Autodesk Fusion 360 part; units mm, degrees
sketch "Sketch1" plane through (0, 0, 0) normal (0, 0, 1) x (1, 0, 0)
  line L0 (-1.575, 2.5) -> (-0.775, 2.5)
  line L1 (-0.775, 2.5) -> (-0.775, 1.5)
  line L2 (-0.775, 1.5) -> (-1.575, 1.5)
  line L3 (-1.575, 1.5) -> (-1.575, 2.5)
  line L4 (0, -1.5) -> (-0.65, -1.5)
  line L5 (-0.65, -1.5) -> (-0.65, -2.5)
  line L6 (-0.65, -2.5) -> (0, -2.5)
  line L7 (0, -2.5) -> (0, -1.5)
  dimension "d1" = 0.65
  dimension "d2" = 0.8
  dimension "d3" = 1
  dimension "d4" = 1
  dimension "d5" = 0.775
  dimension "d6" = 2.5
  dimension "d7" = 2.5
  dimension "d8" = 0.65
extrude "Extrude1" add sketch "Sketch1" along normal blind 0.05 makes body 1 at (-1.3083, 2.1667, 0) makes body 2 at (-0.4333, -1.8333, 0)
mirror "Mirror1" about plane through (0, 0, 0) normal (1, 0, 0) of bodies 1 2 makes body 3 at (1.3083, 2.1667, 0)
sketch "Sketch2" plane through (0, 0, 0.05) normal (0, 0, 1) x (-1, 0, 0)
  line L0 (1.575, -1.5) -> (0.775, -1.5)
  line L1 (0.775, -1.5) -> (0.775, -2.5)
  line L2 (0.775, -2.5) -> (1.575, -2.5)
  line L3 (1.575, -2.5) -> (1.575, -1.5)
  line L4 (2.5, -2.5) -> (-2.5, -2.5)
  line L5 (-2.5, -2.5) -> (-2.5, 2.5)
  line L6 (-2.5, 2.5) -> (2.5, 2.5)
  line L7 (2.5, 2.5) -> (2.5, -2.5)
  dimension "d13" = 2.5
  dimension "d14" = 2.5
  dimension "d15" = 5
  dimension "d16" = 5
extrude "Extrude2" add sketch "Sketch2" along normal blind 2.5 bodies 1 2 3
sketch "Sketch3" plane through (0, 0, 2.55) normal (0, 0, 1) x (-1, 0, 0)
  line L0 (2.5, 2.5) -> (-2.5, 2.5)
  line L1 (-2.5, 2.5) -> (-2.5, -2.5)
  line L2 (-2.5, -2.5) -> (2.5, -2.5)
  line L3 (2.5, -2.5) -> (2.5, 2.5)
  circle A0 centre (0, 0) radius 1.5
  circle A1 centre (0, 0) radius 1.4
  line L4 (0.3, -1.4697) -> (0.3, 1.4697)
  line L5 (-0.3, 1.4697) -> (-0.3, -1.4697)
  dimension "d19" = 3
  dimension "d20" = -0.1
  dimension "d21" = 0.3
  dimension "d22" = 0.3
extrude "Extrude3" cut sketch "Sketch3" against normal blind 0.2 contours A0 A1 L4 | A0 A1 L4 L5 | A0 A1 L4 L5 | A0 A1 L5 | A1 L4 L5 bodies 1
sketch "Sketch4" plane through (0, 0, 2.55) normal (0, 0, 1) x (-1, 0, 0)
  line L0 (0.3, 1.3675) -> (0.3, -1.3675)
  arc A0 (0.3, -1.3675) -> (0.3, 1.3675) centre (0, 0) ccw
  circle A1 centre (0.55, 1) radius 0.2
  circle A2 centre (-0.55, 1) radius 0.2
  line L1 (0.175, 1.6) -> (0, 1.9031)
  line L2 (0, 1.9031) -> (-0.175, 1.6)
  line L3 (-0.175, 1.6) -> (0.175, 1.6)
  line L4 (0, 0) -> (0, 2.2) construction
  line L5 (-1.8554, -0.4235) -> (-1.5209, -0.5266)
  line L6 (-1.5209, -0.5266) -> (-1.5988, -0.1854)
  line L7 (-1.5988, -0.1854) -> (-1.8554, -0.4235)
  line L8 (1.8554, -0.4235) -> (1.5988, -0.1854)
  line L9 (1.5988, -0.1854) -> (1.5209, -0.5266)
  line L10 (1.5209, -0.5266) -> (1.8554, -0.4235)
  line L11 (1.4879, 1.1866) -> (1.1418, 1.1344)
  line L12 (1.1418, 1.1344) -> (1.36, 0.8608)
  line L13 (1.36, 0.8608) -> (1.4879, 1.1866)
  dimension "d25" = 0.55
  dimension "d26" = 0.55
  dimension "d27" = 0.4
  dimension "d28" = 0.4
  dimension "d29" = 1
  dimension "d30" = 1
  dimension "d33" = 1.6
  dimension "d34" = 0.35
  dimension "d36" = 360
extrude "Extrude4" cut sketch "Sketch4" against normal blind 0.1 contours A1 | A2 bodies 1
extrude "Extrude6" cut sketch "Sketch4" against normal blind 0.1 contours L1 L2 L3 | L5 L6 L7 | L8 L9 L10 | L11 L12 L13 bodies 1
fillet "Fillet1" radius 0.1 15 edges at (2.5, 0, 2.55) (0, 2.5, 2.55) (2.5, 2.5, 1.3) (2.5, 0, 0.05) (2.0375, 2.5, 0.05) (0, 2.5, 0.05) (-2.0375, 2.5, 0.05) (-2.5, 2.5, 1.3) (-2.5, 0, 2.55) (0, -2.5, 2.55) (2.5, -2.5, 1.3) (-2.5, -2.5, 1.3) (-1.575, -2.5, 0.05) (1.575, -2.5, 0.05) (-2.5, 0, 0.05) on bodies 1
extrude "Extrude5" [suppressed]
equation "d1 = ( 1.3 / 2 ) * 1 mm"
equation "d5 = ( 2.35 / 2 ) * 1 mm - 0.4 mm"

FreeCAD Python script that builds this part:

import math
import FreeCAD as App
import Part
import Sketcher
from FreeCAD import Vector
Q = App.Units.Quantity


def edges_at(feature, points):
    """Names of the edges that pass closest to the given points."""
    edges = feature.Shape.Edges
    near = lambda p: min(range(len(edges)), key=lambda i: edges[i].distToShape(Part.Vertex(*p))[0])
    return sorted({f"Edge{near(p) + 1}" for p in points})


def add_polygon(sketch, points):
    """Adds a closed chain of lines whose ends are joined by coincident constraints."""
    first, n = sketch.GeometryCount, len(points)
    for a, b in zip(points, points[1:] + points[:1]):
        sketch.addGeometry(Part.LineSegment(App.Vector(*a, 0), App.Vector(*b, 0)), False)
    for i in range(n):
        sketch.addConstraint(Sketcher.Constraint("Coincident", first + i, 2, first + (i + 1) % n, 1))

doc = App.newDocument("Part")
body = doc.addObject("PartDesign::Body", "Body")
body.AllowCompound = True

# Sketch on XY plane
sketch1 = body.newObject("Sketcher::SketchObject", "Sketch")
sketch1.AttachmentSupport = (doc.getObject("XY_Plane"), [""])
sketch1.MapMode = "FlatFace"
add_polygon(sketch1, [(-0.8, 2.5), (-1.6, 2.5), (-1.6, 1.5), (-0.8, 1.5)])  # lines 0-3
add_polygon(sketch1, [(0, -2.5), (0, -1.5), (-0.7, -1.5), (-0.7, -2.5)])  # lines 4-7
sketch1.addConstraint([
    Sketcher.Constraint("Horizontal", 0),
    Sketcher.Constraint("Vertical", 1),
    Sketcher.Constraint("Horizontal", 2),
    Sketcher.Constraint("Vertical", 3),
    Sketcher.Constraint("Vertical", 4),
    Sketcher.Constraint("Horizontal", 5),
    Sketcher.Constraint("Vertical", 6),
    Sketcher.Constraint("Horizontal", 7),
    Sketcher.Constraint("PointOnObject", 4, 2, -2),
    Sketcher.Constraint("Equal", 3, 4),
    Sketcher.Constraint("DistanceY", 1, 2, 1, 1, 1.0),
    Sketcher.Constraint("DistanceX", 0, 2, 0, 1, 0.8),
    Sketcher.Constraint("DistanceX", 5, 2, 5, 1, 0.65),
    Sketcher.Constraint("DistanceY", -1, 1, 0, 2, 2.5),
    Sketcher.Constraint("DistanceY", 6, 2, -1, 1, 2.5),
    Sketcher.Constraint("DistanceX", 2, 2, -1, 1, 0.775),
])
pad1 = body.newObject("PartDesign::Pad", "Pad")
pad1.Profile = sketch1
pad1.Length = 0.05
doc.recompute()

mirrored = body.newObject("PartDesign::Mirrored", "Mirrored")
mirrored.TransformMode = "Transform body"
mirrored.MirrorPlane = (doc.getObject("YZ_Plane"), [""])
body.Tip = mirrored

# Sketch on XY plane
sketch2 = body.newObject("Sketcher::SketchObject", "Sketch001")
sketch2.AttachmentSupport = (doc.getObject("XY_Plane"), [""])
sketch2.MapMode = "FlatFace"
sketch2.AttachmentOffset = App.Placement(Vector(0, 0, 0.05), App.Rotation())
add_polygon(sketch2, [(-2, 2), (-2, -2), (2, -2), (2, 2)])  # lines 0-3
sketch2.addConstraint([
    Sketcher.Constraint("Vertical", 0),
    Sketcher.Constraint("Horizontal", 1),
    Sketcher.Constraint("Vertical", 2),
    Sketcher.Constraint("Horizontal", 3),
    Sketcher.Constraint("Symmetric", 0, 2, 2, 2, -1, 1),
    Sketcher.Constraint("Equal", 3, 0),
    Sketcher.Constraint("DistanceX", 1, 1, 1, 2, 5.0),
])
pad2 = body.newObject("PartDesign::Pad", "Pad001")
pad2.Profile = sketch2
pad2.Length = 2.5

# Sketch on XY plane
sketch3 = body.newObject("Sketcher::SketchObject", "Sketch002")
sketch3.AttachmentSupport = (doc.getObject("XY_Plane"), [""])
sketch3.MapMode = "FlatFace"
sketch3.AttachmentOffset = App.Placement(Vector(0, 0, 2.55), App.Rotation())
sketch3.addGeometry([
    Part.Circle(Vector(0, 0, 0), Vector(0, 0, 1), 1.5),  # 0
    Part.LineSegment(Vector(-0.3, 1.4, 0), Vector(-0.3, -1.4, 0)),  # 1
    Part.ArcOfCircle(Part.Circle(Vector(0, 0, 0), Vector(0, 0, 1), 1.4), math.radians(102), math.radians(258)),  # 2
    Part.ArcOfCircle(Part.Circle(Vector(0, 0, 0), Vector(0, 0, 1), 1.4), math.radians(-78), math.radians(78)),  # 3
    Part.LineSegment(Vector(0.3, -1.4, 0), Vector(0.3, 1.4, 0)),  # 4
], False)
sketch3.addConstraint([
    Sketcher.Constraint("Coincident", 1, 1, 2, 1),
    Sketcher.Constraint("Coincident", 2, 2, 1, 2),
    Sketcher.Constraint("Coincident", 3, 1, 4, 1),
    Sketcher.Constraint("Coincident", 4, 2, 3, 2),
    Sketcher.Constraint("Vertical", 1),
    Sketcher.Constraint("Vertical", 4),
    Sketcher.Constraint("Coincident", 0, 3, -1, 1),
    Sketcher.Constraint("Coincident", 2, 3, -1, 1),
    Sketcher.Constraint("Coincident", 3, 3, -1, 1),
    Sketcher.Constraint("Equal", 2, 3),
    Sketcher.Constraint("Horizontal", 2, 2, 3, 1),
    Sketcher.Constraint("Diameter", 0, 3.0),
    Sketcher.Constraint("DistanceX", 1, 1, -1, 1, 0.3),
    Sketcher.Constraint("Radius", 2, 1.4),
])
pocket1 = body.newObject("PartDesign::Pocket", "Pocket")
pocket1.Profile = sketch3
pocket1.Length = 0.2

# Sketch on XY plane
sketch4 = body.newObject("Sketcher::SketchObject", "Sketch003")
sketch4.AttachmentSupport = (doc.getObject("XY_Plane"), [""])
sketch4.MapMode = "FlatFace"
sketch4.AttachmentOffset = App.Placement(Vector(0, 0, 2.55), App.Rotation())
sketch4.addGeometry([
    Part.Circle(Vector(-0.55, -1, 0), Vector(0, 0, 1), 0.2),
    Part.Circle(Vector(0.55, -1, 0), Vector(0, 0, 1), 0.2),
], False)
sketch4.addConstraint([
    Sketcher.Constraint("Equal", 0, 1),
    Sketcher.Constraint("Symmetric", 0, 3, 1, 3, -2),
    Sketcher.Constraint("Diameter", 0, 0.4),
    Sketcher.Constraint("DistanceY", 0, 3, -1, 1, 1.0),
    Sketcher.Constraint("DistanceX", 0, 3, -1, 1, 0.55),
])
pocket2 = body.newObject("PartDesign::Pocket", "Pocket001")
pocket2.Profile = sketch4
pocket2.Length = 0.1

# Sketch on XY plane
sketch5 = body.newObject("Sketcher::SketchObject", "Sketch004")
sketch5.AttachmentSupport = (doc.getObject("XY_Plane"), [""])
sketch5.MapMode = "FlatFace"
sketch5.AttachmentOffset = App.Placement(Vector(0, 0, 2.55), App.Rotation())
add_polygon(sketch5, [(0.17, -1.6), (-0.17, -1.6), (0, -1.9)])  # lines 0-2
add_polygon(sketch5, [(1.6, 0.19), (1.86, 0.42), (1.52, 0.53)])  # lines 3-5
add_polygon(sketch5, [(-1.52, 0.53), (-1.86, 0.42), (-1.6, 0.19)])  # lines 6-8
add_polygon(sketch5, [(-1.36, -0.86), (-1.49, -1.19), (-1.14, -1.13)])  # lines 9-11
sketch5.addConstraint([
    Sketcher.Constraint("Horizontal", 0),
    Sketcher.Constraint("Symmetric", 3, 2, 6, 2, -2),
    Sketcher.Constraint("Symmetric", 5, 2, 7, 2, -2),
    Sketcher.Constraint("Symmetric", 4, 2, 8, 2, -2),
    Sketcher.Constraint("PointOnObject", 1, 2, -2),
    Sketcher.Constraint("Equal", 1, 2),
    Sketcher.Constraint("Equal", 2, 3),
    Sketcher.Constraint("Equal", 3, 4),
    Sketcher.Constraint("Equal", 4, 5),
    Sketcher.Constraint("Equal", 8, 9),
    Sketcher.Constraint("Equal", 9, 10),
    Sketcher.Constraint("Equal", 10, 11),
    Sketcher.Constraint("DistanceX", 0, 2, 0, 1, 0.35),
    Sketcher.Constraint("DistanceY", 0, 2, -1, 1, 1.6),
    Sketcher.Constraint("Distance", 1, 0.35),
    Sketcher.Constraint("Angle", 4, Q("162.8696 deg")),
    Sketcher.Constraint("DistanceX", 11, 2, -1, 1, 1.36),
    Sketcher.Constraint("DistanceY", 9, 2, 6, 2, 1.61),
    Sketcher.Constraint("DistanceX", -1, 1, 4, 2, 1.521),
    Sketcher.Constraint("DistanceX", 9, 2, -1, 1, 1.488),
    Sketcher.Constraint("DistanceY", -1, 1, 3, 2, 0.4235),
])
pocket3 = body.newObject("PartDesign::Pocket", "Pocket002")
pocket3.Profile = sketch5
pocket3.Length = 0.1
doc.recompute()

fillet = body.newObject("PartDesign::Fillet", "Fillet")
fillet.Base = (pocket3, edges_at(pocket3, [
    (2.5, 0, 2.55),
    (0, 2.5, 2.55),
    (2.5, 2.5, 1.3),
    (2.5, 0, 0.05),
    (2.038, 2.5, 0.05),
    (0, 2.5, 0.05),
    (-2.038, 2.5, 0.05),
    (-2.5, 2.5, 1.3),
    (-2.5, 0, 2.55),
    (0, -2.5, 2.55),
    (2.5, -2.5, 1.3),
    (-2.5, -2.5, 1.3),
    (-1.575, -2.5, 0.05),
    (1.575, -2.5, 0.05),
    (-2.5, 0, 0.05),
]))
fillet.Radius = 0.1

doc.recompute()
